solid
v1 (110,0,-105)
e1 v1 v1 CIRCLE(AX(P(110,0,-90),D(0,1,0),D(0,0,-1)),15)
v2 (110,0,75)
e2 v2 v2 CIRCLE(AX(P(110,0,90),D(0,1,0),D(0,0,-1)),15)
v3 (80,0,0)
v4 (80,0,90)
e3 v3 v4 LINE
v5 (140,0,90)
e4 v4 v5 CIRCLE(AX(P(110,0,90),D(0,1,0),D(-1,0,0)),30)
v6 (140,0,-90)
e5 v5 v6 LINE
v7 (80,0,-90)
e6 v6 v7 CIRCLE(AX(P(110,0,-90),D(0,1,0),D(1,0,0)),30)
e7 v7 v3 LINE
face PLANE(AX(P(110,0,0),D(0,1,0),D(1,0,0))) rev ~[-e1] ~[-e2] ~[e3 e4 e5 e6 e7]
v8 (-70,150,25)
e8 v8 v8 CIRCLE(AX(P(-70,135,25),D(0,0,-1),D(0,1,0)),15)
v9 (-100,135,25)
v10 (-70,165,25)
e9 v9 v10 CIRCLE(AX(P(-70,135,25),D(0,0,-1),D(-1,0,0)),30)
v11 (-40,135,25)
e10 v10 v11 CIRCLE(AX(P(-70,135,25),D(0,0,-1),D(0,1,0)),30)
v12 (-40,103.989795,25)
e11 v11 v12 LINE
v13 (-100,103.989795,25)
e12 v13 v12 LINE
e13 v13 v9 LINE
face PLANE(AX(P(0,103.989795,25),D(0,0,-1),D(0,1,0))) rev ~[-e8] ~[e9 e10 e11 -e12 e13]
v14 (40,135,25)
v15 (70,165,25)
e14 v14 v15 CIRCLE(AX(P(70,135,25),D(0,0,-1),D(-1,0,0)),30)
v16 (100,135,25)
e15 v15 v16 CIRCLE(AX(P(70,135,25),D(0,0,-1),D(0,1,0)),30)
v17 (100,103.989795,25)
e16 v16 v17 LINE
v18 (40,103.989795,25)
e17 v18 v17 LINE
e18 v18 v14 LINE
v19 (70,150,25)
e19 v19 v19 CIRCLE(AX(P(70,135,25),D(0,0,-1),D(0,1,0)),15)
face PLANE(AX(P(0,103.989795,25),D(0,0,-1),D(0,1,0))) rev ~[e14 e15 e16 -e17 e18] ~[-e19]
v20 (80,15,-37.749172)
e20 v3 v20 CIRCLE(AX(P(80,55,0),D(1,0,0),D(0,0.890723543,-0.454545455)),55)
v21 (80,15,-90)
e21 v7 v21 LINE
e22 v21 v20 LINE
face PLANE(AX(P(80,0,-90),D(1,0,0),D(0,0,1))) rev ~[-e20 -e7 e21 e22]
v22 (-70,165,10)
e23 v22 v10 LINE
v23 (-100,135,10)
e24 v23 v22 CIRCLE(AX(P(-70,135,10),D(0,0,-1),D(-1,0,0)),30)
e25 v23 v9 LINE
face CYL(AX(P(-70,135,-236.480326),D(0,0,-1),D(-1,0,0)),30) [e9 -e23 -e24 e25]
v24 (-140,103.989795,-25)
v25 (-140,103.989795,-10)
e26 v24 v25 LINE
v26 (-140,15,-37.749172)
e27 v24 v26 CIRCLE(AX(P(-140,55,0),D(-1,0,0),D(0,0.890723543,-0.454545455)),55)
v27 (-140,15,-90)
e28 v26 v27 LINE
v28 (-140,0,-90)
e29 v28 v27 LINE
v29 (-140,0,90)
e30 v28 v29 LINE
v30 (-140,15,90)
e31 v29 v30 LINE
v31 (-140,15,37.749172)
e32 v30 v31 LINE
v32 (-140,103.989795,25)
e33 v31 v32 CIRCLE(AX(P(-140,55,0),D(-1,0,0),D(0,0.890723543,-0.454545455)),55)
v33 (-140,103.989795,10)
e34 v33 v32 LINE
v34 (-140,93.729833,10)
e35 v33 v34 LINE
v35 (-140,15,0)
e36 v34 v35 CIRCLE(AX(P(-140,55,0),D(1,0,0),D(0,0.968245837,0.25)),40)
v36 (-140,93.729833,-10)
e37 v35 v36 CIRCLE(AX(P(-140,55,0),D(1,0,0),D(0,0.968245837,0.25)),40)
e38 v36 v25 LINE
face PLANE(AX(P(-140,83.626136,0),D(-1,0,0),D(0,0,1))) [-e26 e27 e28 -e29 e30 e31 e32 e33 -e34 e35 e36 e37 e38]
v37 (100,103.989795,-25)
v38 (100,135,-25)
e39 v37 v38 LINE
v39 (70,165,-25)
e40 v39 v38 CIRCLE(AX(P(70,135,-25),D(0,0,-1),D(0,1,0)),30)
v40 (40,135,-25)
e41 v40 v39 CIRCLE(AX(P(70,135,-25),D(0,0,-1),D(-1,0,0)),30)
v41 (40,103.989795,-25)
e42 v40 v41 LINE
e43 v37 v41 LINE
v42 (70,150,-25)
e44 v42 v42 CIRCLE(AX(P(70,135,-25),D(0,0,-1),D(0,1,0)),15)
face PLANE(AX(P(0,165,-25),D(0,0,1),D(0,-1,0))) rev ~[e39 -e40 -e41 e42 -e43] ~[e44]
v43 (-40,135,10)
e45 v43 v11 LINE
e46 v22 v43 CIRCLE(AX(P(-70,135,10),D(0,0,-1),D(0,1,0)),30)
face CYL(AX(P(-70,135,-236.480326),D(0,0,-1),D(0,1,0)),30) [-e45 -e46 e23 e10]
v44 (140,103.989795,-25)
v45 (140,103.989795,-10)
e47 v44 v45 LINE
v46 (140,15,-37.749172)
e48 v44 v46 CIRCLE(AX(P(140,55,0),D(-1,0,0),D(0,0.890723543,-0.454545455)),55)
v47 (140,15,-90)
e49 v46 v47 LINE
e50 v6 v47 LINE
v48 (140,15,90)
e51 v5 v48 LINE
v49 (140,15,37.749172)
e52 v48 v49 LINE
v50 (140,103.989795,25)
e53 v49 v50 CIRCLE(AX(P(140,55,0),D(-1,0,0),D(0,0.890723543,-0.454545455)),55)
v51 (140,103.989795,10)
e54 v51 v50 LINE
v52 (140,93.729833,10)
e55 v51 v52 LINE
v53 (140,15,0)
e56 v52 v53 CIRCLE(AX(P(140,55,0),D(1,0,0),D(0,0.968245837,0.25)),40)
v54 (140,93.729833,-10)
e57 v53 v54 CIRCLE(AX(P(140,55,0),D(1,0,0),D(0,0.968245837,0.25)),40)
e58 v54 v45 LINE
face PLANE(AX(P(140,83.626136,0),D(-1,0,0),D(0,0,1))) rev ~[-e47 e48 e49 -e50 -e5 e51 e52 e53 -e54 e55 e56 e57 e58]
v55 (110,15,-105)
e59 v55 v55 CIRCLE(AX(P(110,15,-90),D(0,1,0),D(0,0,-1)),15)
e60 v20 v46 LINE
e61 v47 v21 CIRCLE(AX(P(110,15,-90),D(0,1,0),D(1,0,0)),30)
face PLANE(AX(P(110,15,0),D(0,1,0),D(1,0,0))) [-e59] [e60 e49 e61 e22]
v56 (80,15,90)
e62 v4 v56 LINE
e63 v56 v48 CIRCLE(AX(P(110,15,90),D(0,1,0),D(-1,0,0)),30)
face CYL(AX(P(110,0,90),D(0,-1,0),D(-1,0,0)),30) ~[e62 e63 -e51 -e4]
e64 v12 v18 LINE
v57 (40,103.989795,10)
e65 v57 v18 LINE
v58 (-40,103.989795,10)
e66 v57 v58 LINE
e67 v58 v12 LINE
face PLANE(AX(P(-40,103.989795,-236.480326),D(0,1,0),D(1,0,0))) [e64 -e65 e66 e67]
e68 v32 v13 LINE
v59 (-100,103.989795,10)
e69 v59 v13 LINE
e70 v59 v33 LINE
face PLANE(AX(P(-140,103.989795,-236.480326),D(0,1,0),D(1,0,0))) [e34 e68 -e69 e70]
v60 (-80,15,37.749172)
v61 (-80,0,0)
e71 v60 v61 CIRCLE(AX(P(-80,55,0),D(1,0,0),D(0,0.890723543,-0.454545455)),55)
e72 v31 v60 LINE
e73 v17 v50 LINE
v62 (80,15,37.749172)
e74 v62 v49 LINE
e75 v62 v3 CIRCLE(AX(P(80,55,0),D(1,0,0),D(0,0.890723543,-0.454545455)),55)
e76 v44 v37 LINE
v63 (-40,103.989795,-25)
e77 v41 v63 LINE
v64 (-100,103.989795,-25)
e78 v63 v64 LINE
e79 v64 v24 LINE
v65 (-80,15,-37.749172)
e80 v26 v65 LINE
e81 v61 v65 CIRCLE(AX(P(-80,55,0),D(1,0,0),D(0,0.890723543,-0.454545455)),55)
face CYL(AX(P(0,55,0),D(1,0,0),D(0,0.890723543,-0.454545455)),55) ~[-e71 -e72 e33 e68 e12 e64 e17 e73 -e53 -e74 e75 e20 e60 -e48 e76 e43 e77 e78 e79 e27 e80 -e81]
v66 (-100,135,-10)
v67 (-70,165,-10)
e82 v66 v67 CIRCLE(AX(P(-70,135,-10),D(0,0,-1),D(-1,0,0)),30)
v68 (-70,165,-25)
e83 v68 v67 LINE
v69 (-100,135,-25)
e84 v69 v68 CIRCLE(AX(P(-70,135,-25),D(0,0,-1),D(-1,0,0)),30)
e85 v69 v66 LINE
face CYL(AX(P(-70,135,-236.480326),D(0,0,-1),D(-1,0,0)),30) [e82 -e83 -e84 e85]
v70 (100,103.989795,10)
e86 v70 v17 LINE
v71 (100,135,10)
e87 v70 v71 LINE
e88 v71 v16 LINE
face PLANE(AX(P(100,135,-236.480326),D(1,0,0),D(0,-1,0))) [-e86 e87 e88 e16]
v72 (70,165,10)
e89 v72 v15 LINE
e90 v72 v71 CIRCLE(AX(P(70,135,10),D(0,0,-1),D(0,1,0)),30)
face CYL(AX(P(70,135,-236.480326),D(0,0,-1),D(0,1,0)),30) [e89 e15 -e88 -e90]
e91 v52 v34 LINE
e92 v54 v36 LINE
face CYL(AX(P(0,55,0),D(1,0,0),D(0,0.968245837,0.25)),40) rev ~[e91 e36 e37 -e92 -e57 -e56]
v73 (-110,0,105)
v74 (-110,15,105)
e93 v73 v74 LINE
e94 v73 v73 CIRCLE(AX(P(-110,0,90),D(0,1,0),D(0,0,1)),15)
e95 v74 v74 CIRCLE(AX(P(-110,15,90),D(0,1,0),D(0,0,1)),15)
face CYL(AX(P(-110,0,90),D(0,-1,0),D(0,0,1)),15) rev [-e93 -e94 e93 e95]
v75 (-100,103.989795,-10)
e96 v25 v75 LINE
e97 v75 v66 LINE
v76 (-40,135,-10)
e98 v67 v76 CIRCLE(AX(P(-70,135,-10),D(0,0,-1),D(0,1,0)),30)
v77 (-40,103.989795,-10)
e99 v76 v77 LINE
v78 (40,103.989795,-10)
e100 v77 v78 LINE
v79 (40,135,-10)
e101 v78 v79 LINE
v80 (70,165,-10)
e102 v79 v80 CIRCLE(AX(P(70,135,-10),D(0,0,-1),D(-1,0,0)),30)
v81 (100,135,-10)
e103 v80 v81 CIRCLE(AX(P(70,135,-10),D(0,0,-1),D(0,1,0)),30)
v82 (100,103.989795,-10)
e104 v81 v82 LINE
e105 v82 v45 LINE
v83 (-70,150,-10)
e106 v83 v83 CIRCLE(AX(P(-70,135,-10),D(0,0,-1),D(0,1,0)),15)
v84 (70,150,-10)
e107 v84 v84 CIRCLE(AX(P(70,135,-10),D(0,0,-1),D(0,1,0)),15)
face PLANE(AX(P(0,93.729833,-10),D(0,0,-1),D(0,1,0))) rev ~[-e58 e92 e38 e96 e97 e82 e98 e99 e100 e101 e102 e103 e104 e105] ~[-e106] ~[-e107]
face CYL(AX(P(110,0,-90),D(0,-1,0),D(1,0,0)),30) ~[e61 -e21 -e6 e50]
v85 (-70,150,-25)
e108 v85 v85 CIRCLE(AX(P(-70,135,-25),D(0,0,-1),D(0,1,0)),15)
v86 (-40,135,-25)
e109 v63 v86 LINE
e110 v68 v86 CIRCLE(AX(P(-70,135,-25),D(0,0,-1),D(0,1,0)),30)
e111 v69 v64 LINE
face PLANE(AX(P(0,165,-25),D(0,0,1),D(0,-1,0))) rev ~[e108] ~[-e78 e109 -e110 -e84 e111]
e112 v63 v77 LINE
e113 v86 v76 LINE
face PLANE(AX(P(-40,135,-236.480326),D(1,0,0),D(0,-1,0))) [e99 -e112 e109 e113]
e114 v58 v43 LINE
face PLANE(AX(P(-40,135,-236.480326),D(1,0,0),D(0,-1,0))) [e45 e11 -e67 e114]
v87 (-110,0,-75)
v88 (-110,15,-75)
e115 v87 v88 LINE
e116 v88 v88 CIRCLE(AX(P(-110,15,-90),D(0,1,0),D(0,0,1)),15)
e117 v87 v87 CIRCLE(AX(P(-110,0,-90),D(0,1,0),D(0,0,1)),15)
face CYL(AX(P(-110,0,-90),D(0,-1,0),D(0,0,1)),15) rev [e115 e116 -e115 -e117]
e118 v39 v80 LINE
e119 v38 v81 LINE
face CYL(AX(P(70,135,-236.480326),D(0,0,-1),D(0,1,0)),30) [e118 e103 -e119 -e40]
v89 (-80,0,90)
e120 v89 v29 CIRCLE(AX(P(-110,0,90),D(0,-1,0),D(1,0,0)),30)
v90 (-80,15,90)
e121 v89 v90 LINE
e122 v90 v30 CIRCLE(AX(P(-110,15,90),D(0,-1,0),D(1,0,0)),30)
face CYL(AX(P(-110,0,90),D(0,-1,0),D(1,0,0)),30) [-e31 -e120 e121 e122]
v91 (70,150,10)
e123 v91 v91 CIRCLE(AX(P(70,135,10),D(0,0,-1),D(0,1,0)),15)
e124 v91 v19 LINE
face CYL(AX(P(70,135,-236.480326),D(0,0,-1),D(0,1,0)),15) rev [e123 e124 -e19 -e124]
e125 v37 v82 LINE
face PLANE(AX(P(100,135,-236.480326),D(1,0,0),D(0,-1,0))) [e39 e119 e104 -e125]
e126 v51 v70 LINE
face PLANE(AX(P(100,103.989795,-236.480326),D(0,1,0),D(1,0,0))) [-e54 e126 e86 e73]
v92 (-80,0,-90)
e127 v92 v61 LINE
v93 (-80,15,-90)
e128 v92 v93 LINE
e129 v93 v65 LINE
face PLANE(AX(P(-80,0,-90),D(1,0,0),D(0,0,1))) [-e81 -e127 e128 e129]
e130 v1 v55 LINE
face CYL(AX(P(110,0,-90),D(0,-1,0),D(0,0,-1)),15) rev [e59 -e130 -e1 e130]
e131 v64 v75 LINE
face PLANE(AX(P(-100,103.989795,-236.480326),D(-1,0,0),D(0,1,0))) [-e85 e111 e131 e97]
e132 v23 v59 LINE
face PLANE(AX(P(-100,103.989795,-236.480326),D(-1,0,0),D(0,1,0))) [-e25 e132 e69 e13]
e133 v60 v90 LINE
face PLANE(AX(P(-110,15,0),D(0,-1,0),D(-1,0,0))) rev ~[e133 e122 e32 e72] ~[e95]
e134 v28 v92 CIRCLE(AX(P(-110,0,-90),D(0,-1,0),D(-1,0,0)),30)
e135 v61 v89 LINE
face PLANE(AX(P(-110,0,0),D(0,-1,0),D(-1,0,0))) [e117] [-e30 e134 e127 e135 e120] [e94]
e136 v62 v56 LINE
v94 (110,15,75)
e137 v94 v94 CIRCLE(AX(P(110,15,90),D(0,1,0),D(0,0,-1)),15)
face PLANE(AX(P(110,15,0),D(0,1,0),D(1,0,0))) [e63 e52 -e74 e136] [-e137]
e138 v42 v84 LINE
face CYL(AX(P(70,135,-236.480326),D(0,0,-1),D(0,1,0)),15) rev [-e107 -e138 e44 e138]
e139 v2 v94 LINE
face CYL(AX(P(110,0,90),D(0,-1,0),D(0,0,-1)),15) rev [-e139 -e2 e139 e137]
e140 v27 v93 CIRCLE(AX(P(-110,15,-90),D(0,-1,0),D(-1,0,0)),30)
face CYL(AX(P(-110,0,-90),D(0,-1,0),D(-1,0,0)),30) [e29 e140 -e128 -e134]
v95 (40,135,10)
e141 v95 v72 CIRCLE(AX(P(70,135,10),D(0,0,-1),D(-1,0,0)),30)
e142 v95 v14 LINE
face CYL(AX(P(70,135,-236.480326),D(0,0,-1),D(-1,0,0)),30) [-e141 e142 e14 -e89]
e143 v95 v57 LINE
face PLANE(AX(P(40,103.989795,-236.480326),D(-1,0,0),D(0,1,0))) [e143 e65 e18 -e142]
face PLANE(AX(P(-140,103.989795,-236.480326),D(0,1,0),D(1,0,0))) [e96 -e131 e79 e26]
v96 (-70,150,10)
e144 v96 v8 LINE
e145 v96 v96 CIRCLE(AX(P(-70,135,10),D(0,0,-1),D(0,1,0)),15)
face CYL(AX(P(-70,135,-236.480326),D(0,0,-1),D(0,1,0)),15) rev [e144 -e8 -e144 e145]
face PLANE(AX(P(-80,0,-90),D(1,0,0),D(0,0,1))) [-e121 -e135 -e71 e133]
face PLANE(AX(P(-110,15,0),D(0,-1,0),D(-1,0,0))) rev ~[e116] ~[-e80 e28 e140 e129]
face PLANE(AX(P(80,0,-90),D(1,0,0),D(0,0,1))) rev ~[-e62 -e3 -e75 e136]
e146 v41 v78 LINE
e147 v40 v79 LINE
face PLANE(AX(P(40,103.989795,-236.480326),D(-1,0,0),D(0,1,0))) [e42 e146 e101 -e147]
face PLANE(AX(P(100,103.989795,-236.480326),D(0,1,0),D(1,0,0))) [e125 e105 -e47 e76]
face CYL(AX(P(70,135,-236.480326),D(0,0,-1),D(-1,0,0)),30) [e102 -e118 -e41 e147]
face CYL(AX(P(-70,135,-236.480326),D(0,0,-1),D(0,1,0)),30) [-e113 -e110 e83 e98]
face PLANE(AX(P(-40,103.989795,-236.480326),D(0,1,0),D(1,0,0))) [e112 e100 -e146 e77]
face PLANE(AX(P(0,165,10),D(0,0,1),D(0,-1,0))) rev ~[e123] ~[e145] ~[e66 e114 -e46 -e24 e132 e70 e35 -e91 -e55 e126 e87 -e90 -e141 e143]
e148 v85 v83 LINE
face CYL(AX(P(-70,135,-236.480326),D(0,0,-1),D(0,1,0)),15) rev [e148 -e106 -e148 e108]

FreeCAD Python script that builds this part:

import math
import FreeCAD as App
import Part
import Sketcher
from FreeCAD import Vector
Q = App.Units.Quantity

doc = App.newDocument("Part")
params = doc.addObject("Spreadsheet::Sheet", "Params")
for row, (alias, value) in enumerate([
    ("sketch1_diameter", "30 mm"),
    ("sketch1_radius", "30 mm"),
    ("sketch1_height", "180 mm"),
    ("pad1_length", "15 mm"),
    ("sketch2_diameter", "30 mm"),
    ("sketch2_radius", "30 mm"),
    ("sketch2_height", "180 mm"),
    ("pad2_length", "15 mm"),
    ("sketch3_radius", "55 mm"),
    ("sketch3_radius2", "40 mm"),
    ("sketch3_height", "15 mm"),
    ("pad3_length", "280 mm"),
    ("sketch4_diameter", "30 mm"),
    ("sketch4_radius", "30 mm"),
    ("sketch4_width", "40 mm"),
    ("sketch4_width2", "80 mm"),
], start=1):
    params.set(f"A{row}", alias)
    params.set(f"B{row}", "=" + value)
    params.setAlias(f"B{row}", alias)

body = doc.addObject("PartDesign::Body", "Body")

# Sketch on XZ plane
sketch1 = doc.addObject("Sketcher::SketchObject", "Sketch")
body.addObject(sketch1)
sketch1.AttachmentSupport = (doc.XZ_Plane, [""])
sketch1.MapMode = "FlatFace"
sketch1.addGeometry([
    Part.LineSegment(Vector(-140, -90, 0), Vector(-140, 90, 0)),  # 0
    Part.ArcOfCircle(Part.Circle(Vector(-110, 90, 0), Vector(0, 0, 1), 30), math.radians(0), math.radians(180)),  # 1
    Part.LineSegment(Vector(-80, 90, 0), Vector(-80, -90, 0)),  # 2
    Part.ArcOfCircle(Part.Circle(Vector(-110, -90, 0), Vector(0, 0, 1), 30), math.radians(180), math.radians(360)),  # 3
    Part.Circle(Vector(-110, 90, 0), Vector(0, 0, 1), 15),  # 4
    Part.Circle(Vector(-110, -90, 0), Vector(0, 0, 1), 15),  # 5
], False)
sketch1.addConstraint([
    Sketcher.Constraint("Tangent", 0, 2, 1, 2),
    Sketcher.Constraint("Tangent", 1, 1, 2, 1),
    Sketcher.Constraint("Tangent", 2, 2, 3, 2),
    Sketcher.Constraint("Tangent", 3, 1, 0, 1),
    Sketcher.Constraint("Vertical", 0),
    Sketcher.Constraint("Vertical", 2),
    Sketcher.Constraint("Coincident", 4, 3, 1, 3),
    Sketcher.Constraint("Coincident", 5, 3, 3, 3),
    Sketcher.Constraint("Equal", 4, 5),
    Sketcher.Constraint("Diameter", 4, Q("30 mm")),
    Sketcher.Constraint("Radius", 1, Q("30 mm")),
    Sketcher.Constraint("DistanceY", 0, 1, 0, 2, Q("180 mm")),
    Sketcher.Constraint("DistanceX", 1, 3, -1, 1, Q("110 mm")),
    Sketcher.Constraint("DistanceY", -1, 1, 1, 3, Q("90 mm")),
])
sketch1.setExpression("Constraints[9]", "Params.sketch1_diameter")
sketch1.setExpression("Constraints[10]", "Params.sketch1_radius")
sketch1.setExpression("Constraints[11]", "Params.sketch1_height")
pad1 = doc.addObject("PartDesign::Pad", "Pad")
body.addObject(pad1)
pad1.Profile = sketch1
pad1.setExpression("Length", "Params.pad1_length")
pad1.Reversed = True
body2 = doc.addObject("PartDesign::Body", "Body001")

# Sketch on XZ plane
sketch2 = doc.addObject("Sketcher::SketchObject", "Sketch001")
body2.addObject(sketch2)
sketch2.AttachmentSupport = (doc.getObject("XZ_Plane001"), [""])
sketch2.MapMode = "FlatFace"
sketch2.addGeometry([
    Part.LineSegment(Vector(140, 90, 0), Vector(140, -90, 0)),  # 0
    Part.ArcOfCircle(Part.Circle(Vector(110, -90, 0), Vector(0, 0, 1), 30), math.radians(180), math.radians(360)),  # 1
    Part.LineSegment(Vector(80, -90, 0), Vector(80, 90, 0)),  # 2
    Part.ArcOfCircle(Part.Circle(Vector(110, 90, 0), Vector(0, 0, 1), 30), math.radians(0), math.radians(180)),  # 3
    Part.Circle(Vector(110, 90, 0), Vector(0, 0, 1), 15),  # 4
    Part.Circle(Vector(110, -90, 0), Vector(0, 0, 1), 15),  # 5
], False)
sketch2.addConstraint([
    Sketcher.Constraint("Tangent", 0, 2, 1, 2),
    Sketcher.Constraint("Tangent", 1, 1, 2, 1),
    Sketcher.Constraint("Tangent", 2, 2, 3, 2),
    Sketcher.Constraint("Tangent", 3, 1, 0, 1),
    Sketcher.Constraint("Vertical", 0),
    Sketcher.Constraint("Vertical", 2),
    Sketcher.Constraint("Coincident", 4, 3, 3, 3),
    Sketcher.Constraint("Coincident", 5, 3, 1, 3),
    Sketcher.Constraint("Equal", 4, 5),
    Sketcher.Constraint("Diameter", 4, Q("30 mm")),
    Sketcher.Constraint("Radius", 1, Q("30 mm")),
    Sketcher.Constraint("DistanceY", 0, 2, 0, 1, Q("180 mm")),
    Sketcher.Constraint("DistanceX", -1, 1, 1, 3, Q("110 mm")),
    Sketcher.Constraint("DistanceY", 1, 3, -1, 1, Q("90 mm")),
])
sketch2.setExpression("Constraints[9]", "Params.sketch2_diameter")
sketch2.setExpression("Constraints[10]", "Params.sketch2_radius")
sketch2.setExpression("Constraints[11]", "Params.sketch2_height")
pad2 = doc.addObject("PartDesign::Pad", "Pad001")
body2.addObject(pad2)
pad2.Profile = sketch2
pad2.setExpression("Length", "Params.pad2_length")
pad2.Reversed = True
body.AllowCompound = True
doc.recompute()

boolean = doc.addObject("PartDesign::Boolean", "Boolean")
body.addObject(boolean)
boolean.Type = "Fuse"
boolean.addObjects([body2])

# Sketch on YZ plane
sketch3 = doc.addObject("Sketcher::SketchObject", "Sketch002")
body.addObject(sketch3)
sketch3.AttachmentSupport = (doc.YZ_Plane, [""])
sketch3.MapMode = "FlatFace"
sketch3.addGeometry([
    Part.LineSegment(Vector(94, 10, 0), Vector(165, 10, 0)),  # 0
    Part.LineSegment(Vector(165, 10, 0), Vector(165, 25, 0)),  # 1
    Part.LineSegment(Vector(165, 25, 0), Vector(104, 25, 0)),  # 2
    Part.ArcOfCircle(Part.Circle(Vector(55, 0, 0), Vector(0, 0, 1), 55), math.radians(27), math.radians(333)),  # 3
    Part.LineSegment(Vector(104, -25, 0), Vector(165, -25, 0)),  # 4
    Part.LineSegment(Vector(165, -25, 0), Vector(165, -10, 0)),  # 5
    Part.LineSegment(Vector(165, -10, 0), Vector(94, -10, 0)),  # 6
    Part.ArcOfCircle(Part.Circle(Vector(55, 0, 0), Vector(0, 0, 1), 40), math.radians(14), math.radians(346)),  # 7
], False)
sketch3.addConstraint([
    Sketcher.Constraint("Coincident", 0, 2, 1, 1),
    Sketcher.Constraint("Coincident", 1, 2, 2, 1),
    Sketcher.Constraint("Coincident", 2, 2, 3, 1),
    Sketcher.Constraint("Coincident", 3, 2, 4, 1),
    Sketcher.Constraint("Coincident", 4, 2, 5, 1),
    Sketcher.Constraint("Coincident", 5, 2, 6, 1),
    Sketcher.Constraint("Coincident", 6, 2, 7, 2),
    Sketcher.Constraint("Coincident", 7, 1, 0, 1),
    Sketcher.Constraint("Horizontal", 0),
    Sketcher.Constraint("Vertical", 1),
    Sketcher.Constraint("Horizontal", 2),
    Sketcher.Constraint("Horizontal", 4),
    Sketcher.Constraint("Vertical", 5),
    Sketcher.Constraint("Horizontal", 6),
    Sketcher.Constraint("Coincident", 7, 3, 3, 3),
    Sketcher.Constraint("Symmetric", 2, 2, 3, 2, -1),
    Sketcher.Constraint("Symmetric", 0, 2, 5, 2, -1),
    Sketcher.Constraint("Radius", 3, Q("55 mm")),
    Sketcher.Constraint("Radius", 7, Q("40 mm")),
    Sketcher.Constraint("DistanceY", 1, 1, 1, 2, Q("15 mm")),
    Sketcher.Constraint("DistanceX", -1, 1, 3, 3, Q("55 mm")),
    Sketcher.Constraint("DistanceX", -1, 1, 0, 2, Q("165 mm")),
    Sketcher.Constraint("DistanceY", -1, 1, 0, 2, Q("10 mm")),
])
sketch3.setExpression("Constraints[17]", "Params.sketch3_radius")
sketch3.setExpression("Constraints[18]", "Params.sketch3_radius2")
sketch3.setExpression("Constraints[19]", "Params.sketch3_height")
pad3 = doc.addObject("PartDesign::Pad", "Pad002")
body.addObject(pad3)
pad3.Profile = sketch3
pad3.setExpression("Length", "Params.pad3_length")
pad3.Midplane = True

# Sketch on XY plane
sketch4 = doc.addObject("Sketcher::SketchObject", "Sketch003")
body.addObject(sketch4)
sketch4.AttachmentSupport = (doc.XY_Plane, [""])
sketch4.MapMode = "FlatFace"
sketch4.AttachmentOffset = App.Placement(Vector(0, 0, 25), App.Rotation())
sketch4.addGeometry([
    Part.LineSegment(Vector(-140, 165, 0), Vector(-140, 104, 0)),  # 0
    Part.LineSegment(Vector(-140, 104, 0), Vector(-100, 104, 0)),  # 1
    Part.LineSegment(Vector(-100, 104, 0), Vector(-100, 135, 0)),  # 2
    Part.ArcOfCircle(Part.Circle(Vector(-70, 135, 0), Vector(0, 0, 1), 30), math.radians(90), math.radians(180)),  # 3
    Part.LineSegment(Vector(-70, 165, 0), Vector(-140, 165, 0)),  # 4
    Part.Circle(Vector(-70, 135, 0), Vector(0, 0, 1), 15),  # 5
    Part.LineSegment(Vector(-40, 135, 0), Vector(-40, 104, 0)),  # 6
    Part.LineSegment(Vector(-40, 104, 0), Vector(40, 104, 0)),  # 7
    Part.LineSegment(Vector(40, 104, 0), Vector(40, 135, 0)),  # 8
    Part.ArcOfCircle(Part.Circle(Vector(70, 135, 0), Vector(0, 0, 1), 30), math.radians(90), math.radians(180)),  # 9
    Part.LineSegment(Vector(70, 165, 0), Vector(-70, 165, 0)),  # 10
    Part.ArcOfCircle(Part.Circle(Vector(-70, 135, 0), Vector(0, 0, 1), 30), math.radians(0), math.radians(90)),  # 11
    Part.Circle(Vector(70, 135, 0), Vector(0, 0, 1), 15),  # 12
    Part.LineSegment(Vector(140, 165, 0), Vector(70, 165, 0)),  # 13
    Part.ArcOfCircle(Part.Circle(Vector(70, 135, 0), Vector(0, 0, 1), 30), math.radians(0), math.radians(90)),  # 14
    Part.LineSegment(Vector(100, 135, 0), Vector(100, 104, 0)),  # 15
    Part.LineSegment(Vector(100, 104, 0), Vector(140, 104, 0)),  # 16
    Part.LineSegment(Vector(140, 104, 0), Vector(140, 165, 0)),  # 17
], False)
sketch4.addConstraint([
    Sketcher.Constraint("Coincident", 0, 2, 1, 1),
    Sketcher.Constraint("Coincident", 1, 2, 2, 1),
    Sketcher.Constraint("Tangent", 2, 2, 3, 2),
    Sketcher.Constraint("Tangent", 3, 1, 4, 1),
    Sketcher.Constraint("Coincident", 4, 2, 0, 1),
    Sketcher.Constraint("Coincident", 6, 2, 7, 1),
    Sketcher.Constraint("Coincident", 7, 2, 8, 1),
    Sketcher.Constraint("Tangent", 8, 2, 9, 2),
    Sketcher.Constraint("Tangent", 9, 1, 10, 1),
    Sketcher.Constraint("Tangent", 10, 2, 11, 2),
    Sketcher.Constraint("Tangent", 11, 1, 6, 1),
    Sketcher.Constraint("Tangent", 13, 2, 14, 2),
    Sketcher.Constraint("Tangent", 14, 1, 15, 1),
    Sketcher.Constraint("Coincident", 15, 2, 16, 1),
    Sketcher.Constraint("Coincident", 16, 2, 17, 1),
    Sketcher.Constraint("Coincident", 17, 2, 13, 1),
    Sketcher.Constraint("Vertical", 0),
    Sketcher.Constraint("Horizontal", 1),
    Sketcher.Constraint("Vertical", 2),
    Sketcher.Constraint("Horizontal", 4),
    Sketcher.Constraint("Vertical", 6),
    Sketcher.Constraint("Horizontal", 7),
    Sketcher.Constraint("Vertical", 8),
    Sketcher.Constraint("Horizontal", 10),
    Sketcher.Constraint("Horizontal", 13),
    Sketcher.Constraint("Vertical", 15),
    Sketcher.Constraint("Horizontal", 16),
    Sketcher.Constraint("Vertical", 17),
    Sketcher.Constraint("Coincident", 5, 3, 3, 3),
    Sketcher.Constraint("Coincident", 11, 3, 3, 3),
    Sketcher.Constraint("Coincident", 12, 3, 9, 3),
    Sketcher.Constraint("Coincident", 14, 3, 9, 3),
    Sketcher.Constraint("Equal", 3, 9),
    Sketcher.Constraint("Equal", 9, 11),
    Sketcher.Constraint("Equal", 5, 12),
    Sketcher.Constraint("Equal", 11, 14),
    Sketcher.Constraint("Symmetric", 1, 2, 15, 2, -2),
    Sketcher.Constraint("Horizontal", 1, 2, 6, 2),
    Sketcher.Constraint("Equal", 4, 13),
    Sketcher.Constraint("Diameter", 5, Q("30 mm")),
    Sketcher.Constraint("Radius", 3, Q("30 mm")),
    Sketcher.Constraint("DistanceX", 1, 1, 1, 2, Q("40 mm")),
    Sketcher.Constraint("DistanceX", 7, 1, 7, 2, Q("80 mm")),
    Sketcher.Constraint("DistanceY", -1, 1, 3, 3, Q("135 mm")),
    Sketcher.Constraint("DistanceY", 0, 2, 0, 1, Q("61.010205 mm")),
])
sketch4.setExpression("Constraints[39]", "Params.sketch4_diameter")
sketch4.setExpression("Constraints[40]", "Params.sketch4_radius")
sketch4.setExpression("Constraints[41]", "Params.sketch4_width")
sketch4.setExpression("Constraints[42]", "Params.sketch4_width2")
pocket1 = doc.addObject("PartDesign::Pocket", "Pocket")
body.addObject(pocket1)
pocket1.Profile = sketch4
pocket1.Type = "ThroughAll"
pocket1.Midplane = True

doc.recompute()
